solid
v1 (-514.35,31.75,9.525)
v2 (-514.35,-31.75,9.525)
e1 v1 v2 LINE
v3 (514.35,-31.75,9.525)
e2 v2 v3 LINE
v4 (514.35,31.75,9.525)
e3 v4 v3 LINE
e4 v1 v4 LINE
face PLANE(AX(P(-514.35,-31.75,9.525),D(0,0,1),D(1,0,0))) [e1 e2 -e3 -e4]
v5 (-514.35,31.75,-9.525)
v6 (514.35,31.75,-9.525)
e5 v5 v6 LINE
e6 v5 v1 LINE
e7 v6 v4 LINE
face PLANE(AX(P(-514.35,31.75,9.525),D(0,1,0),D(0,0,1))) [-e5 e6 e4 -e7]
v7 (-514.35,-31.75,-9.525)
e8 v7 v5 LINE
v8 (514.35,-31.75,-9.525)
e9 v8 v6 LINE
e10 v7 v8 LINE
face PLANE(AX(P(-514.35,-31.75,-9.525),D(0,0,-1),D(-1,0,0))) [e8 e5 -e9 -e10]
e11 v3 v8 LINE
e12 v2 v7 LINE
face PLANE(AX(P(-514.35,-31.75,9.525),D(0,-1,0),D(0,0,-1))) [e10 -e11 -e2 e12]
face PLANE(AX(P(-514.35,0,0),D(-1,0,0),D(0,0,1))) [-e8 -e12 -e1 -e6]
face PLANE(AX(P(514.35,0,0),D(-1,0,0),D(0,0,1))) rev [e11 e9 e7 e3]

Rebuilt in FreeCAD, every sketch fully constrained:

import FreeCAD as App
import Part
import Sketcher

V = App.Vector
Q = App.Units.Quantity


def add_polygon(sketch, points):
    """Adds a closed chain of lines whose ends are joined by coincident constraints."""
    first, n = sketch.GeometryCount, len(points)
    for a, b in zip(points, points[1:] + points[:1]):
        sketch.addGeometry(Part.LineSegment(App.Vector(*a, 0), App.Vector(*b, 0)), False)
    for i in range(n):
        sketch.addConstraint(Sketcher.Constraint("Coincident", first + i, 2, first + (i + 1) % n, 1))

doc = App.newDocument("Part")
body = doc.addObject("PartDesign::Body", "Body")

# Sketch on YZ plane
sketch1 = body.newObject("Sketcher::SketchObject", "Sketch")
sketch1.AttachmentSupport = (doc.getObject("YZ_Plane"), [""])
sketch1.MapMode = "FlatFace"
add_polygon(sketch1, [(32, 10), (-32, 10), (-32, -10), (32, -10)])  # lines 0-3
sketch1.addConstraint([
    Sketcher.Constraint("Horizontal", 0),
    Sketcher.Constraint("Vertical", 1),
    Sketcher.Constraint("Horizontal", 2),
    Sketcher.Constraint("Vertical", 3),
    Sketcher.Constraint("Symmetric", 0, 2, 2, 2, -1, 1),
    Sketcher.Constraint("DistanceX", 0, 2, 0, 1, Q("2.5 in")),
    Sketcher.Constraint("DistanceY", 1, 2, 1, 1, Q("0.75 in")),
])
pad1 = body.newObject("PartDesign::Pad", "Pad")
pad1.Profile = sketch1
pad1.Type = "TwoLengths"
pad1.Length = Q("20.25 in")
pad1.Length2 = Q("20.25 in")

doc.recompute()
